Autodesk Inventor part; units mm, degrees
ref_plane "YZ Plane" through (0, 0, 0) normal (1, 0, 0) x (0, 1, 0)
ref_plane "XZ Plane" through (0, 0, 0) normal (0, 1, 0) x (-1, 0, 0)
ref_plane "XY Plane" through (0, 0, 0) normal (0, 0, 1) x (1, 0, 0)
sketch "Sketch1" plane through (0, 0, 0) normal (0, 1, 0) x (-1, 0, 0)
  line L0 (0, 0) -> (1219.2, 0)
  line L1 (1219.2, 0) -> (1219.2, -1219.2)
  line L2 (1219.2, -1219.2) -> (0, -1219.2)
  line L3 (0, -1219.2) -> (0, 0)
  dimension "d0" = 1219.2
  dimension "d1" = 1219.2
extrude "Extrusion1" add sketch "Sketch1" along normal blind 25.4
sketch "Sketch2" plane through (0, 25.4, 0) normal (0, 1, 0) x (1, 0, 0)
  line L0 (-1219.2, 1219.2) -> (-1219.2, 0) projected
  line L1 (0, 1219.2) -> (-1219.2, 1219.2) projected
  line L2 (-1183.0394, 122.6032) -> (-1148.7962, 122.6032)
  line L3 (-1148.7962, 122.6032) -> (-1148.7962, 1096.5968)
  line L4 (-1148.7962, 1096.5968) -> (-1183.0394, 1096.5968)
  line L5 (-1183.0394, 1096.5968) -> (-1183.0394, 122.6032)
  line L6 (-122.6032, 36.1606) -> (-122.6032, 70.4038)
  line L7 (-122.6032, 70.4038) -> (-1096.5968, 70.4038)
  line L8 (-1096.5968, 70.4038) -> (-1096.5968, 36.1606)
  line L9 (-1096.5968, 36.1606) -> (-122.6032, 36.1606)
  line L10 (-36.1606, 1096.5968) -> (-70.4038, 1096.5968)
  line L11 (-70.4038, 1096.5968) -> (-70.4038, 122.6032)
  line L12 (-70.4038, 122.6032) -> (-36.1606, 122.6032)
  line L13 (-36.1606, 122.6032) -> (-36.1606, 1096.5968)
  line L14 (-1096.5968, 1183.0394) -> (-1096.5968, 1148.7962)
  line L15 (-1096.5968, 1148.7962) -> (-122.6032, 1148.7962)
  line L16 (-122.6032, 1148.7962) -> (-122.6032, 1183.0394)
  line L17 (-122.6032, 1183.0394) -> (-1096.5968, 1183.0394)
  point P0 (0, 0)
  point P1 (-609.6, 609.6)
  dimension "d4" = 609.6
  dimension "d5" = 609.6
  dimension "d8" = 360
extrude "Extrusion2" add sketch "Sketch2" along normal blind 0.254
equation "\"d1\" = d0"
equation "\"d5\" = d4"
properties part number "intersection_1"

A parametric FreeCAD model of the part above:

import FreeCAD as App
import Part
import Sketcher

V = App.Vector
Q = App.Units.Quantity


def add_polygon(sketch, points):
    """Adds a closed chain of lines whose ends are joined by coincident constraints."""
    first, n = sketch.GeometryCount, len(points)
    for a, b in zip(points, points[1:] + points[:1]):
        sketch.addGeometry(Part.LineSegment(App.Vector(*a, 0), App.Vector(*b, 0)), False)
    for i in range(n):
        sketch.addConstraint(Sketcher.Constraint("Coincident", first + i, 2, first + (i + 1) % n, 1))

doc = App.newDocument("Part")
body = doc.addObject("PartDesign::Body", "Body")

sketch1 = body.newObject("Sketcher::SketchObject", "Sketch")
sketch1.AttachmentSupport = (doc.getObject("XZ_Plane"), [""])
sketch1.MapMode = "FlatFace"
add_polygon(sketch1, [(-1219.2, 0), (0, 0), (0, -1219.2), (-1219.2, -1219.2)])
sketch1.addConstraint([
    Sketcher.Constraint("Horizontal", 0),
    Sketcher.Constraint("Vertical", 1),
    Sketcher.Constraint("Horizontal", 2),
    Sketcher.Constraint("Vertical", 3),
    Sketcher.Constraint("Coincident", 0, 2, -1, 1),
    Sketcher.Constraint("Equal", 2, 1),
    Sketcher.Constraint("DistanceX", 0, 1, 0, 2, Q("48 in")),
])
pad1 = body.newObject("PartDesign::Pad", "Pad")
pad1.Profile = sketch1
pad1.Length = Q("1 in")
pad1.Reversed = True

sketch2 = body.newObject("Sketcher::SketchObject", "Sketch001")
sketch2.AttachmentSupport = (doc.getObject("XZ_Plane"), [""])
sketch2.MapMode = "FlatFace"
sketch2.AttachmentOffset = App.Placement(V(0, 0, -1 * 25.4), App.Rotation())
add_polygon(sketch2, [(-1183.0394, -1096.5968), (-1183.0394, -122.6032), (-1148.7962, -122.6032), (-1148.7962, -1096.5968)])
add_polygon(sketch2, [(-1096.5968, -36.1606), (-122.6032, -36.1606), (-122.6032, -70.4038), (-1096.5968, -70.4038)])
add_polygon(sketch2, [(-36.1606, -122.6032), (-36.1606, -1096.5968), (-70.4038, -1096.5968), (-70.4038, -122.6032)])
add_polygon(sketch2, [(-122.6032, -1183.0394), (-1096.5968, -1183.0394), (-1096.5968, -1148.7962), (-122.6032, -1148.7962)])
sketch2.addConstraint([
    Sketcher.Constraint("Vertical", 0),
    Sketcher.Constraint("Horizontal", 1),
    Sketcher.Constraint("Vertical", 2),
    Sketcher.Constraint("Horizontal", 3),
    Sketcher.Constraint("Horizontal", 4),
    Sketcher.Constraint("Vertical", 5),
    Sketcher.Constraint("Horizontal", 6),
    Sketcher.Constraint("Vertical", 7),
    Sketcher.Constraint("Vertical", 8),
    Sketcher.Constraint("Horizontal", 9),
    Sketcher.Constraint("Vertical", 10),
    Sketcher.Constraint("Horizontal", 11),
    Sketcher.Constraint("Horizontal", 12),
    Sketcher.Constraint("Vertical", 13),
    Sketcher.Constraint("Horizontal", 14),
    Sketcher.Constraint("Vertical", 15),
    Sketcher.Constraint("Horizontal", 3, 2, 8, 2),
    Sketcher.Constraint("Horizontal", 1, 2, 10, 2),
    Sketcher.Constraint("Vertical", 7, 2, 12, 2),
    Sketcher.Constraint("Vertical", 5, 2, 14, 2),
    Sketcher.Constraint("Equal", 3, 9),
    Sketcher.Constraint("Equal", 14, 0),
    Sketcher.Constraint("Equal", 11, 5),
    Sketcher.Constraint("Equal", 7, 13),
    Sketcher.Constraint("DistanceX", 4, 1, 4, 2, Q("38.3462 in")),
    Sketcher.Constraint("DistanceX", 1, 1, 1, 2, 34.2432),
    Sketcher.Constraint("DistanceY", 0, 2, -1, 1, Q("4.8269 in")),
    Sketcher.Constraint("DistanceX", 1, 2, -1, 1, Q("45.2282 in")),
    Sketcher.Constraint("DistanceX", 4, 2, -1, 1, Q("4.8269 in")),
    Sketcher.Constraint("DistanceY", 5, 2, -1, 1, Q("2.7718 in")),
    Sketcher.Constraint("DistanceX", 9, 2, -1, 1, Q("2.7718 in")),
    Sketcher.Constraint("DistanceY", 13, 2, -1, 1, Q("45.2282 in")),
])
pad2 = body.newObject("PartDesign::Pad", "Pad001")
pad2.Profile = sketch2
pad2.Length = Q("0.01 in")
pad2.Reversed = True

doc.recompute()
